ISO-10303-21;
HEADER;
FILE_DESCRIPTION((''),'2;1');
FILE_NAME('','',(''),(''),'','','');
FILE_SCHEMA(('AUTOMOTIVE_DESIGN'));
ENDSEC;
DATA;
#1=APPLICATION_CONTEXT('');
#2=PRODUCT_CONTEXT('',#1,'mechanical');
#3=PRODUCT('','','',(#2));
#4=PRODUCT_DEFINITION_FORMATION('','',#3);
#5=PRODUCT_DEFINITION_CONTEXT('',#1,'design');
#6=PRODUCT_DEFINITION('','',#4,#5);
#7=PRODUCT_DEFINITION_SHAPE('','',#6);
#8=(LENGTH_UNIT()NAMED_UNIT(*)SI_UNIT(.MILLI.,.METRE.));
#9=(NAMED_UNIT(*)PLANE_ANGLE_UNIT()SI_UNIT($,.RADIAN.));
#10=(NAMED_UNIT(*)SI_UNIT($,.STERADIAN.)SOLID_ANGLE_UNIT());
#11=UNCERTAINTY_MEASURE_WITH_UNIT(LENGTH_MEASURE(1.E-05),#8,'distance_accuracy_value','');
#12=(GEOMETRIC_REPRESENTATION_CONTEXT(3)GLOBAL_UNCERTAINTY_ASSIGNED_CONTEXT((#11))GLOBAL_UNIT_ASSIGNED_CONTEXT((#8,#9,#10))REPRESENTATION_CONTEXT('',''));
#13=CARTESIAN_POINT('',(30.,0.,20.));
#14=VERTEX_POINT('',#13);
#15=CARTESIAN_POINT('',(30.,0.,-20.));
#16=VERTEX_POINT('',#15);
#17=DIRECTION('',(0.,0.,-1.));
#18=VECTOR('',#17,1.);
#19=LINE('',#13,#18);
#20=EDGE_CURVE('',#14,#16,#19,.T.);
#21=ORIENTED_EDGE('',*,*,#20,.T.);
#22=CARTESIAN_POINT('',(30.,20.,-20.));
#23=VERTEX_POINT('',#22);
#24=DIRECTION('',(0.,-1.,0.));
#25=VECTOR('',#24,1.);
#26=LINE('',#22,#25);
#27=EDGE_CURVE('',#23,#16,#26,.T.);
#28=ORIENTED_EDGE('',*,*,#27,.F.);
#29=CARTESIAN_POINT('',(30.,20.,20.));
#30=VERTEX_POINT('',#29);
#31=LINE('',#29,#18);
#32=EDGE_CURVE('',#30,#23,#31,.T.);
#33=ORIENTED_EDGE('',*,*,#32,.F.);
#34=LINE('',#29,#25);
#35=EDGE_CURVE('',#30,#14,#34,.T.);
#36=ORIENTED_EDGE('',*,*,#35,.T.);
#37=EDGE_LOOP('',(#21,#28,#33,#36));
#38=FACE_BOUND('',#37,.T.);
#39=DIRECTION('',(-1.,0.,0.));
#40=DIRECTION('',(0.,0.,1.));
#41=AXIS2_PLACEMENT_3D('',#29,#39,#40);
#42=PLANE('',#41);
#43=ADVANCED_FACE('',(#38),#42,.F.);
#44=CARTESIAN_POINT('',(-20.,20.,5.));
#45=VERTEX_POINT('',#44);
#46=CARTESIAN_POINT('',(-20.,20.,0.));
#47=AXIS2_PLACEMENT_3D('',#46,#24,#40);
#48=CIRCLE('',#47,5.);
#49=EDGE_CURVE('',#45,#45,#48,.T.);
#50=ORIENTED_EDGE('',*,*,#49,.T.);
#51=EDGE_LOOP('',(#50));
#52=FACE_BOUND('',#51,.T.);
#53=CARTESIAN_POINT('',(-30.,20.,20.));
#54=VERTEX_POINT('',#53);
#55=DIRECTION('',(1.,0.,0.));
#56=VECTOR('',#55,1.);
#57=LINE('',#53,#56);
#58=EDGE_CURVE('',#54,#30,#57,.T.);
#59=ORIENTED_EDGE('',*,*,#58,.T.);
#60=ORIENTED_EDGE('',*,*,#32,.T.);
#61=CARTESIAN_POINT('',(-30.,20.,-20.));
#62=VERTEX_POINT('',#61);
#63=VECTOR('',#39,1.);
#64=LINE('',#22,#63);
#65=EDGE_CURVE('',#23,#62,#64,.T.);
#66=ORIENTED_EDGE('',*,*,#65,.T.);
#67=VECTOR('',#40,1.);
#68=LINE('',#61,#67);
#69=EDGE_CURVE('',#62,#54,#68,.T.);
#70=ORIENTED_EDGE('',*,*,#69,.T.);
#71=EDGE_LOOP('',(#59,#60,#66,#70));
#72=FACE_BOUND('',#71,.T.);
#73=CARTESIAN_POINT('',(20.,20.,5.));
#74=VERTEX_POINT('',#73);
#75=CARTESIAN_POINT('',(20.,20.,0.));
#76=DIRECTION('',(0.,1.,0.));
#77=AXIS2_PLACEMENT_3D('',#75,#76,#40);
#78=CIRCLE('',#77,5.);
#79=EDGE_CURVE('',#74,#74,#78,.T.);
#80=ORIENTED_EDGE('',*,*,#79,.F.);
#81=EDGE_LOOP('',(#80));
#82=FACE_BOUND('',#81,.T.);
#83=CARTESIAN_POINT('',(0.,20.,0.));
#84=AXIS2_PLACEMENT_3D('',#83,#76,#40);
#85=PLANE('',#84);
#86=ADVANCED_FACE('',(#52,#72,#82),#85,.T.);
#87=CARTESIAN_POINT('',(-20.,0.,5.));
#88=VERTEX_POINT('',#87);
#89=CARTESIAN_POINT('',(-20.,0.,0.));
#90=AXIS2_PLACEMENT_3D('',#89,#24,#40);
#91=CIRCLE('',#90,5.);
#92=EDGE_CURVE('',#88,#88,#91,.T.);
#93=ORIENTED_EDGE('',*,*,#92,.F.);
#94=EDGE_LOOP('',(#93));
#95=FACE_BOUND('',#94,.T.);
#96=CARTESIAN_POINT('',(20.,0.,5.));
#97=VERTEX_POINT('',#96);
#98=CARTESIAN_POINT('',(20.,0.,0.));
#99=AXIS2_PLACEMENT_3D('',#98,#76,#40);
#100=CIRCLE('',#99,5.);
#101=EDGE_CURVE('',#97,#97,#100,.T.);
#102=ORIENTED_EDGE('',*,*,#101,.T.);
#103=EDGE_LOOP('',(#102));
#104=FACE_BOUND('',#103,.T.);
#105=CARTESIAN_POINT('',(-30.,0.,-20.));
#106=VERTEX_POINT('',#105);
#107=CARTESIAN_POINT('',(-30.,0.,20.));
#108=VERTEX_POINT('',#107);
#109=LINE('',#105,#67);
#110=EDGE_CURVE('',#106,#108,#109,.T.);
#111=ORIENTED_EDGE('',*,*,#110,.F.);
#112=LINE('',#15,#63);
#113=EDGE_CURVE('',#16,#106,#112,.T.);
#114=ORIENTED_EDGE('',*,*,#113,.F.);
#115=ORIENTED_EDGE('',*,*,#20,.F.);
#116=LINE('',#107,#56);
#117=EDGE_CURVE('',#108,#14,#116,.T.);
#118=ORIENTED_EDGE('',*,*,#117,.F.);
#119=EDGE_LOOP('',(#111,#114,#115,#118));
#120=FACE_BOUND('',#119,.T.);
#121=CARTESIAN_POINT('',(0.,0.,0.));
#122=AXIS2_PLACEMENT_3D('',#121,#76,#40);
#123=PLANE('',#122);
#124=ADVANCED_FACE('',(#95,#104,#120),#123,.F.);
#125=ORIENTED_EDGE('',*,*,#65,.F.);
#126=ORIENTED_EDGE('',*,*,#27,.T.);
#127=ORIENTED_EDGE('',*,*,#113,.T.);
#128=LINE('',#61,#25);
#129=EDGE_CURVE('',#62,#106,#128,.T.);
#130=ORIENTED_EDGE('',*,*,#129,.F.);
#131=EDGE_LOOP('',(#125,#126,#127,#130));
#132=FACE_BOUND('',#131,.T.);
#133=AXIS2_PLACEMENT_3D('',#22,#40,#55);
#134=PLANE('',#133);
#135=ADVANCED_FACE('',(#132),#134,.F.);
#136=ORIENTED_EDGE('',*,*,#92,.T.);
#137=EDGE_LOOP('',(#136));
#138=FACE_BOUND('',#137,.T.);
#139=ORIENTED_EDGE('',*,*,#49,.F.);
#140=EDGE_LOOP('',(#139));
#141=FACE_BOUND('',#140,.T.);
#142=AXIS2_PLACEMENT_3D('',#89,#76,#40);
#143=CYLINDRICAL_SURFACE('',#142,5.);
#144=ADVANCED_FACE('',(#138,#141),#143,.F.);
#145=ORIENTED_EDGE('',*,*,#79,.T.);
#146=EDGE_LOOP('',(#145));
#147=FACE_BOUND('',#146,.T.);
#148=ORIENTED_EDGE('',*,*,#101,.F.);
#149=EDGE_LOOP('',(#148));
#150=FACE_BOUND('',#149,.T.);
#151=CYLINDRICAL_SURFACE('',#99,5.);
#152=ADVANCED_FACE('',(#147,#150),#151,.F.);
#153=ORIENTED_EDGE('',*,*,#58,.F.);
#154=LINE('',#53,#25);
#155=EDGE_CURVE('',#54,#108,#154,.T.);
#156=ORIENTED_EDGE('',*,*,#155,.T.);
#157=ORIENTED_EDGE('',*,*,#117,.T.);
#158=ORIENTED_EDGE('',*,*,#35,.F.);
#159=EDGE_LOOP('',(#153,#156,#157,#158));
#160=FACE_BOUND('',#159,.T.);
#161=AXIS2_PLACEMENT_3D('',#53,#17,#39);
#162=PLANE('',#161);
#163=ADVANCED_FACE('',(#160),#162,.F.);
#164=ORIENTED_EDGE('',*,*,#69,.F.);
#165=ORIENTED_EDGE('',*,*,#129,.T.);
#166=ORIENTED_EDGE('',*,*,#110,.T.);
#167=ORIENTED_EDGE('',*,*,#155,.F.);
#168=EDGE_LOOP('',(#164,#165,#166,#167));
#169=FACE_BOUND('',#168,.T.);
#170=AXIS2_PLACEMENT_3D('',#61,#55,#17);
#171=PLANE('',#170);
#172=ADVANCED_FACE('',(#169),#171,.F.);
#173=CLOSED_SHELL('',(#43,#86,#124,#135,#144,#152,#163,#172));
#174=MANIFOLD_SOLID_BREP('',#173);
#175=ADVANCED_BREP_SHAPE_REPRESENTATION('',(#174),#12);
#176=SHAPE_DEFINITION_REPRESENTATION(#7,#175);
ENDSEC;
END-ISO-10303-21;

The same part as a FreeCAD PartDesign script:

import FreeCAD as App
import Part
import Sketcher

V = App.Vector


def add_polygon(sketch, points):
    """Adds a closed chain of lines whose ends are joined by coincident constraints."""
    first, n = sketch.GeometryCount, len(points)
    for a, b in zip(points, points[1:] + points[:1]):
        sketch.addGeometry(Part.LineSegment(App.Vector(*a, 0), App.Vector(*b, 0)), False)
    for i in range(n):
        sketch.addConstraint(Sketcher.Constraint("Coincident", first + i, 2, first + (i + 1) % n, 1))

doc = App.newDocument("Part")
params = doc.addObject("Spreadsheet::Sheet", "Params")
for row, (alias, value) in enumerate([
    ("sketch1_width", "60 mm"),
    ("sketch1_height", "40 mm"),
    ("pad1_length", "20 mm"),
    ("sketch2_diameter", "10 mm"),
], start=1):
    params.set(f"A{row}", alias)
    params.set(f"B{row}", "=" + value)
    params.setAlias(f"B{row}", alias)

body = doc.addObject("PartDesign::Body", "Body")

# Sketch on XZ plane
sketch1 = body.newObject("Sketcher::SketchObject", "Sketch")
sketch1.AttachmentSupport = (doc.getObject("XZ_Plane"), [""])
sketch1.MapMode = "FlatFace"
add_polygon(sketch1, [(-30, -20), (-30, 20), (30, 20), (30, -20)])  # lines 0-3
sketch1.addConstraint([
    Sketcher.Constraint("Vertical", 0),
    Sketcher.Constraint("Horizontal", 1),
    Sketcher.Constraint("Vertical", 2),
    Sketcher.Constraint("Horizontal", 3),
    Sketcher.Constraint("Symmetric", 0, 2, 2, 2, -1, 1),
    Sketcher.Constraint("DistanceX", 1, 1, 1, 2, 60.0),
    Sketcher.Constraint("DistanceY", 0, 1, 0, 2, 40.0),
])
sketch1.setExpression("Constraints[9]", "Params.sketch1_width")
sketch1.setExpression("Constraints[10]", "Params.sketch1_height")
pad1 = body.newObject("PartDesign::Pad", "Pad")
pad1.Profile = sketch1
pad1.setExpression("Length", "Params.pad1_length")
pad1.Reversed = True

# Sketch on XZ plane
sketch2 = body.newObject("Sketcher::SketchObject", "Sketch001")
sketch2.AttachmentSupport = (doc.getObject("XZ_Plane"), [""])
sketch2.MapMode = "FlatFace"
sketch2.AttachmentOffset = App.Placement(V(0, 0, -20), App.Rotation())
sketch2.addGeometry(Part.Circle(V(20, 0, 0), V(0, 0, 1), 5), False)
sketch2.addConstraint([
    Sketcher.Constraint("PointOnObject", 0, 3, -1),
    Sketcher.Constraint("Diameter", 0, 10.0),
    Sketcher.Constraint("DistanceX", -1, 1, 0, 3, 20.0),
])
sketch2.setExpression("Constraints[1]", "Params.sketch2_diameter")
pocket1 = body.newObject("PartDesign::Pocket", "Pocket")
pocket1.Profile = sketch2
pocket1.Type = "ThroughAll"
pocket1.Reversed = True
doc.recompute()

mirrored = body.newObject("PartDesign::Mirrored", "Mirrored")
mirrored.Originals = [pocket1]
mirrored.MirrorPlane = (doc.getObject("YZ_Plane"), [""])
body.Tip = mirrored

doc.recompute()
